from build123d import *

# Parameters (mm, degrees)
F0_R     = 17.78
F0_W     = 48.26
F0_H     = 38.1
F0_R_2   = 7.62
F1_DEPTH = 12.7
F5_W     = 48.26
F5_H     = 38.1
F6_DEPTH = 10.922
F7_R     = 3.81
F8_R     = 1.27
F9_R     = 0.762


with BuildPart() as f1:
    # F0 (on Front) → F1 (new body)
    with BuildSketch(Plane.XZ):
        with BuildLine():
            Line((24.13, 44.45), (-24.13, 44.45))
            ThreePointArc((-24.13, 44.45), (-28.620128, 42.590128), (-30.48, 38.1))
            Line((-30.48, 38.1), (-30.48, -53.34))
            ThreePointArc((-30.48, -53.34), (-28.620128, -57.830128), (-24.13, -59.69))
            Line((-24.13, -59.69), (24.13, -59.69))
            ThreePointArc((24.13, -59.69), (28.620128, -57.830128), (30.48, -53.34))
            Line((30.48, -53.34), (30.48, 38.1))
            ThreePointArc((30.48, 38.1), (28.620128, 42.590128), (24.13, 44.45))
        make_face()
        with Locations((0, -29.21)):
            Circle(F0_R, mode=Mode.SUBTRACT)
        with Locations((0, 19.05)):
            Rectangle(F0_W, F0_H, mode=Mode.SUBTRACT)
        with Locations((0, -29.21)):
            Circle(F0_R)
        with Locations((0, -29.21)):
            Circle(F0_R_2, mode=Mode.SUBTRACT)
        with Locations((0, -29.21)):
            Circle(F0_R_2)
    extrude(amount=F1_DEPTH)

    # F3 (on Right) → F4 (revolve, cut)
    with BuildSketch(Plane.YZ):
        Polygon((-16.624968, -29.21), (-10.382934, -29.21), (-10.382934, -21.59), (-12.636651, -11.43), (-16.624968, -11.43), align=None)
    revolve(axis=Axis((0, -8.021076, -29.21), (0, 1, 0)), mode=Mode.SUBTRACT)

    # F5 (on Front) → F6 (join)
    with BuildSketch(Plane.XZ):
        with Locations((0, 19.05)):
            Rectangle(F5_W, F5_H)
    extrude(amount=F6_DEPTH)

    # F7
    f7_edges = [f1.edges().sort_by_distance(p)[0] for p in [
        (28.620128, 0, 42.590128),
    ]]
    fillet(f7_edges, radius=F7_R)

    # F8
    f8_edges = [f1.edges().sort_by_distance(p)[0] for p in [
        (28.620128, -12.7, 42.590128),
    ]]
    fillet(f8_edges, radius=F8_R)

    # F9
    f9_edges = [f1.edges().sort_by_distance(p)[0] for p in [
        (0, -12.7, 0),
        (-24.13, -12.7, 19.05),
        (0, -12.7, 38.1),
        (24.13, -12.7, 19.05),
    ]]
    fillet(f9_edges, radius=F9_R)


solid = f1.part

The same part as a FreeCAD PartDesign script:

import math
import FreeCAD as App
import Part
import Sketcher
Q = App.Units.Quantity


def edges_at(feature, points):
    """Names of the edges that pass closest to the given points."""
    edges = feature.Shape.Edges
    near = lambda p: min(range(len(edges)), key=lambda i: edges[i].distToShape(Part.Vertex(*p))[0])
    return sorted({f"Edge{near(p) + 1}" for p in points})


def add_polygon(sketch, points):
    """Adds a closed chain of lines whose ends are joined by coincident constraints."""
    first, n = sketch.GeometryCount, len(points)
    for a, b in zip(points, points[1:] + points[:1]):
        sketch.addGeometry(Part.LineSegment(App.Vector(*a, 0), App.Vector(*b, 0)), False)
    for i in range(n):
        sketch.addConstraint(Sketcher.Constraint("Coincident", first + i, 2, first + (i + 1) % n, 1))

doc = App.newDocument("Part")
body = doc.addObject("PartDesign::Body", "Body")

sketch1 = body.newObject("Sketcher::SketchObject", "Sketch")
sketch1.AttachmentSupport = (doc.getObject("XZ_Plane"), [""])
sketch1.MapMode = "FlatFace"
sketch1.addGeometry(Part.LineSegment(App.Vector(24.13, 44.45, 0), App.Vector(-24.13, 44.45, 0)), False)
sketch1.addGeometry(Part.ArcOfCircle(Part.Circle(App.Vector(-24.13, 38.1, 0), App.Vector(0, 0, 1), 6.35), math.radians(90.000002), math.radians(179.999998)), False)
sketch1.addGeometry(Part.LineSegment(App.Vector(-30.48, 38.1, 0), App.Vector(-30.48, -53.34, 0)), False)
sketch1.addGeometry(Part.ArcOfCircle(Part.Circle(App.Vector(-24.13, -53.34, 0), App.Vector(0, 0, 1), 6.35), math.radians(-179.999998), math.radians(-90.000002)), False)
sketch1.addGeometry(Part.LineSegment(App.Vector(-24.13, -59.69, 0), App.Vector(24.13, -59.69, 0)), False)
sketch1.addGeometry(Part.ArcOfCircle(Part.Circle(App.Vector(24.13, -53.34, 0), App.Vector(0, 0, 1), 6.35), math.radians(-89.999998), math.radians(-0.000002)), False)
sketch1.addGeometry(Part.LineSegment(App.Vector(30.48, -53.34, 0), App.Vector(30.48, 38.1, 0)), False)
sketch1.addGeometry(Part.ArcOfCircle(Part.Circle(App.Vector(24.13, 38.1, 0), App.Vector(0, 0, 1), 6.35), math.radians(0.000002), math.radians(89.999998)), False)
add_polygon(sketch1, [(24.13, 0), (-24.13, 0), (-24.13, 38.1), (24.13, 38.1)])
sketch1.addConstraint(Sketcher.Constraint("Tangent", 0, 2, 1, 1))
sketch1.addConstraint(Sketcher.Constraint("Tangent", 1, 2, 2, 1))
sketch1.addConstraint(Sketcher.Constraint("Tangent", 2, 2, 3, 1))
sketch1.addConstraint(Sketcher.Constraint("Tangent", 3, 2, 4, 1))
sketch1.addConstraint(Sketcher.Constraint("Tangent", 4, 2, 5, 1))
sketch1.addConstraint(Sketcher.Constraint("Tangent", 5, 2, 6, 1))
sketch1.addConstraint(Sketcher.Constraint("Tangent", 6, 2, 7, 1))
sketch1.addConstraint(Sketcher.Constraint("Tangent", 7, 2, 0, 1))
sketch1.addConstraint(Sketcher.Constraint("Horizontal", 0))
sketch1.addConstraint(Sketcher.Constraint("Vertical", 2))
sketch1.addConstraint(Sketcher.Constraint("Horizontal", 4))
sketch1.addConstraint(Sketcher.Constraint("Vertical", 6))
sketch1.addConstraint(Sketcher.Constraint("Horizontal", 8))
sketch1.addConstraint(Sketcher.Constraint("Vertical", 9))
sketch1.addConstraint(Sketcher.Constraint("Horizontal", 10))
sketch1.addConstraint(Sketcher.Constraint("Vertical", 11))
sketch1.addConstraint(Sketcher.Constraint("Coincident", 9, 2, 1, 3))
sketch1.addConstraint(Sketcher.Constraint("Coincident", 10, 2, 7, 3))
sketch1.addConstraint(Sketcher.Constraint("Equal", 1, 3))
sketch1.addConstraint(Sketcher.Constraint("Equal", 3, 5))
sketch1.addConstraint(Sketcher.Constraint("Symmetric", 8, 2, 11, 2, -1, 1))
sketch1.addConstraint(Sketcher.Constraint("Radius", 1, Q("0.25 in")))
sketch1.addConstraint(Sketcher.Constraint("DistanceX", 0, 2, 0, 1, Q("1.9 in")))
sketch1.addConstraint(Sketcher.Constraint("DistanceY", 2, 2, 2, 1, Q("3.6 in")))
sketch1.addConstraint(Sketcher.Constraint("DistanceY", 9, 1, 9, 2, Q("1.5 in")))
pad1 = body.newObject("PartDesign::Pad", "Pad")
pad1.Profile = sketch1
pad1.Length = Q("0.5 in")

sketch2 = body.newObject("Sketcher::SketchObject", "Sketch001")
sketch2.AttachmentSupport = (doc.getObject("YZ_Plane"), [""])
sketch2.MapMode = "FlatFace"
add_polygon(sketch2, [(-16.624968, -29.21), (-10.382934, -29.21), (-10.382934, -21.59), (-12.636651, -11.43), (-16.624968, -11.43)])
sketch2.addGeometry(Part.LineSegment(App.Vector(-16.624968, -29.21, 0), App.Vector(-10.382934, -29.21, 0)), True)
sketch2.addConstraint(Sketcher.Constraint("Horizontal", 0))
sketch2.addConstraint(Sketcher.Constraint("Vertical", 1))
sketch2.addConstraint(Sketcher.Constraint("Horizontal", 3))
sketch2.addConstraint(Sketcher.Constraint("Vertical", 4))
sketch2.addConstraint(Sketcher.Constraint("Horizontal", 5))
sketch2.addConstraint(Sketcher.Constraint("Coincident", 5, 1, 4, 2))
sketch2.addConstraint(Sketcher.Constraint("Vertical", 1, 2, 5, 2))
sketch2.addConstraint(Sketcher.Constraint("DistanceY", 1, 1, 1, 2, Q("0.3 in")))
sketch2.addConstraint(Sketcher.Constraint("DistanceY", 4, 2, 4, 1, Q("0.7 in")))
sketch2.addConstraint(Sketcher.Constraint("DistanceY", 0, 2, -1, 1, Q("1.15 in")))
sketch2.addConstraint(Sketcher.Constraint("Distance", 2, 10.406961))
sketch2.addConstraint(Sketcher.Constraint("DistanceX", 0, 1, 0, 2, 6.242034))
sketch2.addConstraint(Sketcher.Constraint("DistanceX", 2, 2, -1, 1, 12.636651))
groove = body.newObject("PartDesign::Groove", "Groove")
groove.Profile = sketch2
groove.ReferenceAxis = (sketch2, ["Axis0"])
groove.Angle = 360

sketch3 = body.newObject("Sketcher::SketchObject", "Sketch002")
sketch3.AttachmentSupport = (doc.getObject("XZ_Plane"), [""])
sketch3.MapMode = "FlatFace"
add_polygon(sketch3, [(-24.13, 38.1), (-24.13, 0), (24.13, 0), (24.13, 38.1)])
sketch3.addConstraint(Sketcher.Constraint("Vertical", 0))
sketch3.addConstraint(Sketcher.Constraint("Horizontal", 1))
sketch3.addConstraint(Sketcher.Constraint("Vertical", 2))
sketch3.addConstraint(Sketcher.Constraint("Horizontal", 3))
sketch3.addConstraint(Sketcher.Constraint("Symmetric", 0, 2, 1, 2, -1, 1))
sketch3.addConstraint(Sketcher.Constraint("DistanceX", 1, 1, 1, 2, Q("1.9 in")))
sketch3.addConstraint(Sketcher.Constraint("DistanceY", 0, 2, 0, 1, Q("1.5 in")))
pad2 = body.newObject("PartDesign::Pad", "Pad001")
pad2.Profile = sketch3
pad2.Length = Q("0.43 in")
doc.recompute()

fillet = body.newObject("PartDesign::Fillet", "Fillet")
fillet.Base = (pad2, edges_at(pad2, [(28.62, 0, 42.59)]))
fillet.Radius = Q("0.15 in")
doc.recompute()

fillet2 = body.newObject("PartDesign::Fillet", "Fillet001")
fillet2.Base = (fillet, edges_at(fillet, [(28.62, -12.7, 42.59)]))
fillet2.Radius = Q("0.05 in")
doc.recompute()

fillet3 = body.newObject("PartDesign::Fillet", "Fillet002")
fillet3.Base = (fillet2, edges_at(fillet2, [
    (0, -12.7, 0),
    (-24.13, -12.7, 19.05),
    (0, -12.7, 38.1),
    (24.13, -12.7, 19.05),
]))
fillet3.Radius = Q("0.03 in")

doc.recompute()
